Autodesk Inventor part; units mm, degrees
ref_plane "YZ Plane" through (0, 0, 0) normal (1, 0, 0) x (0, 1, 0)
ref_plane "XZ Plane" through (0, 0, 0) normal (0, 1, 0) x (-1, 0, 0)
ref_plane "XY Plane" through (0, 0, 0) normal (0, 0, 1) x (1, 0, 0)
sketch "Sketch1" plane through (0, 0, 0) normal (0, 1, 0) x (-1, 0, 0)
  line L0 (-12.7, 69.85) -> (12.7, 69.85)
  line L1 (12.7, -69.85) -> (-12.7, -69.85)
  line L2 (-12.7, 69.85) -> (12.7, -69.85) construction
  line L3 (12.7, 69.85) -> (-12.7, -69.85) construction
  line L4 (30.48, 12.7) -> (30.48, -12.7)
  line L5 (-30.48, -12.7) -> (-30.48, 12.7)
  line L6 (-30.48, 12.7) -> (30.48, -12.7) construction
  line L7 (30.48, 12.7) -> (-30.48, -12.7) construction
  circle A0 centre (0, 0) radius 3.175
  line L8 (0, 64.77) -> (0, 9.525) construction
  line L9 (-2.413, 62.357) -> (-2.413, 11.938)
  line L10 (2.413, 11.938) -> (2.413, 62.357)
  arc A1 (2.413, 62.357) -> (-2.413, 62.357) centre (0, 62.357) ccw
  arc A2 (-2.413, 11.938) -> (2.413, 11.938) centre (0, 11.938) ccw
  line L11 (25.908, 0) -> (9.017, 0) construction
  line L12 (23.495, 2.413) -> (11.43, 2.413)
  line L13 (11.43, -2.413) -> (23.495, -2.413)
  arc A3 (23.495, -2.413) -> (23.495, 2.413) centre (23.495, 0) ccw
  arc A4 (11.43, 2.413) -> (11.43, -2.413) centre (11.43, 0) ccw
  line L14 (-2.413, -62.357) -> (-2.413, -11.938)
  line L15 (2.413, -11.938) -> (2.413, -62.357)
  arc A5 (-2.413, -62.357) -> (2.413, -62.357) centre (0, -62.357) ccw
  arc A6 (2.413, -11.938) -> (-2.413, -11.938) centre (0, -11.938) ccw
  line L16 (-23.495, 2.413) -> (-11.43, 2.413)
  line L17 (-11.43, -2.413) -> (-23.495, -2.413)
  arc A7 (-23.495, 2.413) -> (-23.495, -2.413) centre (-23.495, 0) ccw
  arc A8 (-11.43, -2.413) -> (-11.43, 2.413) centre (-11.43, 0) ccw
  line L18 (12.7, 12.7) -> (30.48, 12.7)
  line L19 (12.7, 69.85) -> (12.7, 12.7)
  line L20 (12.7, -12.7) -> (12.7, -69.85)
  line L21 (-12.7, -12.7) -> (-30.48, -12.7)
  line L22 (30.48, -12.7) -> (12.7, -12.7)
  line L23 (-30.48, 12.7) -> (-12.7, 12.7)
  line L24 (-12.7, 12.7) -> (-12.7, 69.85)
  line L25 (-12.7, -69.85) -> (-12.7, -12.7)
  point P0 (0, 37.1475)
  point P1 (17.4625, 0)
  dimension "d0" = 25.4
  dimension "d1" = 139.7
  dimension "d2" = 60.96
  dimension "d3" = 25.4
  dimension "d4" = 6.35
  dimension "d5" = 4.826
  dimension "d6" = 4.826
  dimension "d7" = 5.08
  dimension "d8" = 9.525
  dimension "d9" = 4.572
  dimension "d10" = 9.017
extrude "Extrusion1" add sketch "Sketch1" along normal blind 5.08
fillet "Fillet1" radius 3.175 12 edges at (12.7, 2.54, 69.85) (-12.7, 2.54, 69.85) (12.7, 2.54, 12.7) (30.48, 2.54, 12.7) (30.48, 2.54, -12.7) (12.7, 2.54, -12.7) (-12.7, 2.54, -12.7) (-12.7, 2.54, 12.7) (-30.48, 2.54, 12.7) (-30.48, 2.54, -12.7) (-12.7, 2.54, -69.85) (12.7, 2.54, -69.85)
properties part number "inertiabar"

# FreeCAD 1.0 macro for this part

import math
import FreeCAD as App
import Part
import Sketcher

V = App.Vector
Q = App.Units.Quantity


def edges_at(feature, points):
    """Names of the edges that pass closest to the given points."""
    edges = feature.Shape.Edges
    near = lambda p: min(range(len(edges)), key=lambda i: edges[i].distToShape(Part.Vertex(*p))[0])
    return sorted({f"Edge{near(p) + 1}" for p in points})

doc = App.newDocument("Part")
body = doc.addObject("PartDesign::Body", "Body")

# Sketch on XZ plane
sketch1 = body.newObject("Sketcher::SketchObject", "Sketch")
sketch1.AttachmentSupport = (doc.getObject("XZ_Plane"), [""])
sketch1.MapMode = "FlatFace"
sketch1.addGeometry([
    Part.LineSegment(V(-12.7, 69.8, 0), V(12.7, 69.8, 0)),  # 0
    Part.LineSegment(V(12.7, 69.8, 0), V(12.7, 12.7, 0)),  # 1
    Part.LineSegment(V(12.7, 12.7, 0), V(30.5, 12.7, 0)),  # 2
    Part.LineSegment(V(30.5, 12.7, 0), V(30.5, -12.7, 0)),  # 3
    Part.LineSegment(V(30.5, -12.7, 0), V(12.7, -12.7, 0)),  # 4
    Part.LineSegment(V(12.7, -12.7, 0), V(12.7, -69.8, 0)),  # 5
    Part.LineSegment(V(12.7, -69.8, 0), V(-12.7, -69.8, 0)),  # 6
    Part.LineSegment(V(-12.7, -69.8, 0), V(-12.7, -12.7, 0)),  # 7
    Part.LineSegment(V(-12.7, -12.7, 0), V(-30.5, -12.7, 0)),  # 8
    Part.LineSegment(V(-30.5, -12.7, 0), V(-30.5, 12.7, 0)),  # 9
    Part.LineSegment(V(-30.5, 12.7, 0), V(-12.7, 12.7, 0)),  # 10
    Part.LineSegment(V(-12.7, 12.7, 0), V(-12.7, 69.8, 0)),  # 11
    Part.ArcOfCircle(Part.Circle(V(0, -62.4, 0), V(0, 0, 1), 2.4), math.radians(180), math.radians(360)),  # 12
    Part.LineSegment(V(2.4, -62.4, 0), V(2.4, -11.9, 0)),  # 13
    Part.ArcOfCircle(Part.Circle(V(0, -11.9, 0), V(0, 0, 1), 2.4), math.radians(0), math.radians(180)),  # 14
    Part.LineSegment(V(-2.4, -11.9, 0), V(-2.4, -62.4, 0)),  # 15
    Part.ArcOfCircle(Part.Circle(V(23.5, 0, 0), V(0, 0, 1), 2.4), math.radians(-90), math.radians(90)),  # 16
    Part.LineSegment(V(23.5, 2.4, 0), V(11.4, 2.4, 0)),  # 17
    Part.ArcOfCircle(Part.Circle(V(11.4, 0, 0), V(0, 0, 1), 2.4), math.radians(90), math.radians(270)),  # 18
    Part.LineSegment(V(11.4, -2.4, 0), V(23.5, -2.4, 0)),  # 19
    Part.Circle(V(0, 0, 0), V(0, 0, 1), 3.2),  # 20
    Part.LineSegment(V(-11.4, 2.4, 0), V(-23.5, 2.4, 0)),  # 21
    Part.ArcOfCircle(Part.Circle(V(-23.5, 0, 0), V(0, 0, 1), 2.4), math.radians(90), math.radians(270)),  # 22
    Part.LineSegment(V(-23.5, -2.4, 0), V(-11.4, -2.4, 0)),  # 23
    Part.ArcOfCircle(Part.Circle(V(-11.4, 0, 0), V(0, 0, 1), 2.4), math.radians(-90), math.radians(90)),  # 24
    Part.LineSegment(V(2.4, 11.9, 0), V(2.4, 62.4, 0)),  # 25
    Part.ArcOfCircle(Part.Circle(V(0, 62.4, 0), V(0, 0, 1), 2.4), math.radians(0), math.radians(180)),  # 26
    Part.LineSegment(V(-2.4, 62.4, 0), V(-2.4, 11.9, 0)),  # 27
    Part.ArcOfCircle(Part.Circle(V(0, 11.9, 0), V(0, 0, 1), 2.4), math.radians(180), math.radians(360)),  # 28
], False)
sketch1.addConstraint([
    Sketcher.Constraint("Coincident", 0, 2, 1, 1),
    Sketcher.Constraint("Coincident", 1, 2, 2, 1),
    Sketcher.Constraint("Coincident", 2, 2, 3, 1),
    Sketcher.Constraint("Coincident", 3, 2, 4, 1),
    Sketcher.Constraint("Coincident", 4, 2, 5, 1),
    Sketcher.Constraint("Coincident", 5, 2, 6, 1),
    Sketcher.Constraint("Coincident", 6, 2, 7, 1),
    Sketcher.Constraint("Coincident", 7, 2, 8, 1),
    Sketcher.Constraint("Coincident", 8, 2, 9, 1),
    Sketcher.Constraint("Coincident", 9, 2, 10, 1),
    Sketcher.Constraint("Coincident", 10, 2, 11, 1),
    Sketcher.Constraint("Coincident", 11, 2, 0, 1),
    Sketcher.Constraint("Tangent", 12, 2, 13, 1),
    Sketcher.Constraint("Tangent", 13, 2, 14, 1),
    Sketcher.Constraint("Tangent", 14, 2, 15, 1),
    Sketcher.Constraint("Tangent", 15, 2, 12, 1),
    Sketcher.Constraint("Tangent", 16, 2, 17, 1),
    Sketcher.Constraint("Tangent", 17, 2, 18, 1),
    Sketcher.Constraint("Tangent", 18, 2, 19, 1),
    Sketcher.Constraint("Tangent", 19, 2, 16, 1),
    Sketcher.Constraint("Tangent", 21, 2, 22, 1),
    Sketcher.Constraint("Tangent", 22, 2, 23, 1),
    Sketcher.Constraint("Tangent", 23, 2, 24, 1),
    Sketcher.Constraint("Tangent", 24, 2, 21, 1),
    Sketcher.Constraint("Tangent", 25, 2, 26, 1),
    Sketcher.Constraint("Tangent", 26, 2, 27, 1),
    Sketcher.Constraint("Tangent", 27, 2, 28, 1),
    Sketcher.Constraint("Tangent", 28, 2, 25, 1),
    Sketcher.Constraint("Horizontal", 0),
    Sketcher.Constraint("Vertical", 1),
    Sketcher.Constraint("Horizontal", 2),
    Sketcher.Constraint("Vertical", 3),
    Sketcher.Constraint("Horizontal", 4),
    Sketcher.Constraint("Vertical", 5),
    Sketcher.Constraint("Horizontal", 6),
    Sketcher.Constraint("Vertical", 7),
    Sketcher.Constraint("Horizontal", 8),
    Sketcher.Constraint("Vertical", 9),
    Sketcher.Constraint("Horizontal", 10),
    Sketcher.Constraint("Vertical", 11),
    Sketcher.Constraint("Vertical", 13),
    Sketcher.Constraint("Vertical", 15),
    Sketcher.Constraint("Horizontal", 17),
    Sketcher.Constraint("Horizontal", 19),
    Sketcher.Constraint("Horizontal", 21),
    Sketcher.Constraint("Horizontal", 23),
    Sketcher.Constraint("Vertical", 25),
    Sketcher.Constraint("Vertical", 27),
    Sketcher.Constraint("Coincident", 20, 3, -1, 1),
    Sketcher.Constraint("Equal", 14, 16),
    Sketcher.Constraint("Equal", 18, 22),
    Sketcher.Constraint("Equal", 24, 26),
    Sketcher.Constraint("Symmetric", 16, 3, 22, 3, -1, 1),
    Sketcher.Constraint("Symmetric", 12, 3, 26, 3, -1, 1),
    Sketcher.Constraint("Symmetric", 0, 2, 6, 2, -1, 1),
    Sketcher.Constraint("Symmetric", 2, 2, 8, 2, -1, 1),
    Sketcher.Constraint("Symmetric", 4, 2, 10, 2, -1, 1),
    Sketcher.Constraint("Symmetric", 18, 3, 24, 3, -2),
    Sketcher.Constraint("Symmetric", 4, 2, 7, 2, -2),
    Sketcher.Constraint("Symmetric", 14, 3, 28, 3, -1),
    Sketcher.Constraint("Equal", 6, 3),
    Sketcher.Constraint("Diameter", 20, Q("0.25 in")),
    Sketcher.Constraint("DistanceX", 0, 1, 0, 2, Q("1 in")),
    Sketcher.Constraint("Radius", 12, Q("0.095 in")),
    Sketcher.Constraint("DistanceX", 2, 1, 2, 2, Q("0.7 in")),
    Sketcher.Constraint("DistanceX", 13, 2, 18, 3, Q("0.355 in")),
    Sketcher.Constraint("DistanceY", 24, 2, 27, 2, Q("0.375 in")),
    Sketcher.Constraint("DistanceY", 1, 2, 1, 1, Q("2.25 in")),
    Sketcher.Constraint("DistanceX", 17, 2, 17, 1, Q("0.475 in")),
    Sketcher.Constraint("DistanceY", 13, 1, 13, 2, Q("1.985 in")),
])
pad1 = body.newObject("PartDesign::Pad", "Pad")
pad1.Profile = sketch1
pad1.Length = Q("0.2 in")
pad1.Reversed = True
doc.recompute()

fillet = body.newObject("PartDesign::Fillet", "Fillet")
fillet.Base = (pad1, edges_at(pad1, [
    (12.7, 2.54, 69.85),
    (-12.7, 2.54, 69.85),
    (12.7, 2.54, 12.7),
    (30.48, 2.54, 12.7),
    (30.48, 2.54, -12.7),
    (12.7, 2.54, -12.7),
    (-12.7, 2.54, -12.7),
    (-12.7, 2.54, 12.7),
    (-30.48, 2.54, 12.7),
    (-30.48, 2.54, -12.7),
    (-12.7, 2.54, -69.85),
    (12.7, 2.54, -69.85),
]))
fillet.Radius = Q("0.125 in")

doc.recompute()
